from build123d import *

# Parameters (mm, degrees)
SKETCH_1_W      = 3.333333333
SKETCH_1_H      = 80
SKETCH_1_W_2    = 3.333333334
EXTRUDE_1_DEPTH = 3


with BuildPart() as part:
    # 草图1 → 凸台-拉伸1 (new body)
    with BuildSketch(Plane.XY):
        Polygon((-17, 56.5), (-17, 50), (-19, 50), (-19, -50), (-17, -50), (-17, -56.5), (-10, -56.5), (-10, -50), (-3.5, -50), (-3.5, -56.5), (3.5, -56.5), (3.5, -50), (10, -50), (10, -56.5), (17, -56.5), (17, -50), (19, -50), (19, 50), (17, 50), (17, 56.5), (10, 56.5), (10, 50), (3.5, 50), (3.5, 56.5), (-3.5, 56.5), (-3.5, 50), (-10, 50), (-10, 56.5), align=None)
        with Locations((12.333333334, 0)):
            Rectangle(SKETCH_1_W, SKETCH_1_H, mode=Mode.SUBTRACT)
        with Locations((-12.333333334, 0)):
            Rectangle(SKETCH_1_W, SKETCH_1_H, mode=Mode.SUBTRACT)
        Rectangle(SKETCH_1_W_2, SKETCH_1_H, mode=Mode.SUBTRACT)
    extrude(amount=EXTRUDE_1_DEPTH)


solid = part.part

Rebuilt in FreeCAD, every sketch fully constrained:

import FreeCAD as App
import Part
import Sketcher

V = App.Vector


def add_polygon(sketch, points):
    """Adds a closed chain of lines whose ends are joined by coincident constraints."""
    first, n = sketch.GeometryCount, len(points)
    for a, b in zip(points, points[1:] + points[:1]):
        sketch.addGeometry(Part.LineSegment(App.Vector(*a, 0), App.Vector(*b, 0)), False)
    for i in range(n):
        sketch.addConstraint(Sketcher.Constraint("Coincident", first + i, 2, first + (i + 1) % n, 1))

doc = App.newDocument("Part")
params = doc.addObject("Spreadsheet::Sheet", "Params")
for row, (alias, value) in enumerate([
    ("sketch1_width", "2 mm"),
    ("sketch1_width2", "7 mm"),
    ("sketch1_height", "100 mm"),
    ("sketch1_height2", "80 mm"),
    ("sketch1_width3", "6.5 mm"),
    ("pad1_length", "3 mm"),
], start=1):
    params.set(f"A{row}", alias)
    params.set(f"B{row}", "=" + value)
    params.setAlias(f"B{row}", alias)

body = doc.addObject("PartDesign::Body", "Body")

sketch1 = doc.addObject("Sketcher::SketchObject", "Sketch")
body.addObject(sketch1)
sketch1.AttachmentSupport = (doc.XY_Plane, [""])
sketch1.MapMode = "FlatFace"
add_polygon(sketch1, [(-17, 56.5), (-17, 50), (-19, 50), (-19, -50), (-17, -50), (-17, -56.5), (-10, -56.5), (-10, -50), (-3.5, -50), (-3.5, -56.5), (3.5, -56.5), (3.5, -50), (10, -50), (10, -56.5), (17, -56.5), (17, -50), (19, -50), (19, 50), (17, 50), (17, 56.5), (10, 56.5), (10, 50), (3.5, 50), (3.5, 56.5), (-3.5, 56.5), (-3.5, 50), (-10, 50), (-10, 56.5)])
add_polygon(sketch1, [(-10.7, -40), (-14, -40), (-14, 40), (-10.7, 40)])
add_polygon(sketch1, [(1.7, -40), (-1.7, -40), (-1.7, 40), (1.7, 40)])
add_polygon(sketch1, [(14, -40), (10.7, -40), (10.7, 40), (14, 40)])
sketch1.addConstraint([
    Sketcher.Constraint("Vertical", 0),
    Sketcher.Constraint("Horizontal", 1),
    Sketcher.Constraint("Vertical", 2),
    Sketcher.Constraint("Horizontal", 3),
    Sketcher.Constraint("Vertical", 4),
    Sketcher.Constraint("Horizontal", 5),
    Sketcher.Constraint("Vertical", 6),
    Sketcher.Constraint("Horizontal", 7),
    Sketcher.Constraint("Vertical", 8),
    Sketcher.Constraint("Horizontal", 9),
    Sketcher.Constraint("Vertical", 10),
    Sketcher.Constraint("Horizontal", 11),
    Sketcher.Constraint("Vertical", 12),
    Sketcher.Constraint("Horizontal", 13),
    Sketcher.Constraint("Vertical", 14),
    Sketcher.Constraint("Horizontal", 15),
    Sketcher.Constraint("Vertical", 16),
    Sketcher.Constraint("Horizontal", 17),
    Sketcher.Constraint("Vertical", 18),
    Sketcher.Constraint("Horizontal", 19),
    Sketcher.Constraint("Vertical", 20),
    Sketcher.Constraint("Horizontal", 21),
    Sketcher.Constraint("Vertical", 22),
    Sketcher.Constraint("Horizontal", 23),
    Sketcher.Constraint("Vertical", 24),
    Sketcher.Constraint("Horizontal", 25),
    Sketcher.Constraint("Vertical", 26),
    Sketcher.Constraint("Horizontal", 27),
    Sketcher.Constraint("Horizontal", 28),
    Sketcher.Constraint("Vertical", 29),
    Sketcher.Constraint("Horizontal", 30),
    Sketcher.Constraint("Vertical", 31),
    Sketcher.Constraint("Horizontal", 32),
    Sketcher.Constraint("Vertical", 33),
    Sketcher.Constraint("Horizontal", 34),
    Sketcher.Constraint("Vertical", 35),
    Sketcher.Constraint("Horizontal", 36),
    Sketcher.Constraint("Vertical", 37),
    Sketcher.Constraint("Horizontal", 38),
    Sketcher.Constraint("Vertical", 39),
    Sketcher.Constraint("Symmetric", 0, 2, 14, 2, -1, 1),
    Sketcher.Constraint("Symmetric", 2, 2, 16, 2, -1, 1),
    Sketcher.Constraint("Symmetric", 4, 2, 18, 2, -1, 1),
    Sketcher.Constraint("Symmetric", 6, 2, 20, 2, -1, 1),
    Sketcher.Constraint("Symmetric", 8, 2, 22, 2, -1, 1),
    Sketcher.Constraint("Symmetric", 10, 2, 24, 2, -1, 1),
    Sketcher.Constraint("Symmetric", 12, 2, 26, 2, -1, 1),
    Sketcher.Constraint("Symmetric", 32, 2, 34, 2, -1, 1),
    Sketcher.Constraint("Symmetric", 30, 2, 36, 2, -1, 1),
    Sketcher.Constraint("Symmetric", 28, 2, 38, 2, -1, 1),
    Sketcher.Constraint("Symmetric", 7, 2, 10, 2, -2),
    Sketcher.Constraint("Symmetric", 5, 2, 12, 2, -2),
    Sketcher.Constraint("Symmetric", 3, 2, 14, 2, -2),
    Sketcher.Constraint("Horizontal", 3, 2, 6, 2),
    Sketcher.Constraint("Horizontal", 5, 2, 8, 2),
    Sketcher.Constraint("Horizontal", 31, 2, 32, 2),
    Sketcher.Constraint("Horizontal", 30, 2, 33, 2),
    Sketcher.Constraint("Equal", 5, 9),
    Sketcher.Constraint("Equal", 30, 32),
    Sketcher.Constraint("Equal", 25, 0),
    Sketcher.Constraint("DistanceX", 1, 2, 1, 1, 2.0),
    Sketcher.Constraint("DistanceX", 5, 1, 5, 2, 7.0),
    Sketcher.Constraint("DistanceY", 2, 2, 2, 1, 100.0),
    Sketcher.Constraint("DistanceY", 29, 1, 29, 2, 80.0),
    Sketcher.Constraint("DistanceX", 7, 1, 7, 2, 6.5),
    Sketcher.Constraint("DistanceX", 28, 2, -1, 1, 14.0),
    Sketcher.Constraint("DistanceX", 31, 2, 32, 2, 9.0),
])
sketch1.setExpression("Constraints[100]", "Params.sketch1_width")
sketch1.setExpression("Constraints[101]", "Params.sketch1_width2")
sketch1.setExpression("Constraints[102]", "Params.sketch1_height")
sketch1.setExpression("Constraints[103]", "Params.sketch1_height2")
sketch1.setExpression("Constraints[104]", "Params.sketch1_width3")
pad1 = doc.addObject("PartDesign::Pad", "Pad")
body.addObject(pad1)
pad1.Profile = sketch1
pad1.setExpression("Length", "Params.pad1_length")

doc.recompute()
